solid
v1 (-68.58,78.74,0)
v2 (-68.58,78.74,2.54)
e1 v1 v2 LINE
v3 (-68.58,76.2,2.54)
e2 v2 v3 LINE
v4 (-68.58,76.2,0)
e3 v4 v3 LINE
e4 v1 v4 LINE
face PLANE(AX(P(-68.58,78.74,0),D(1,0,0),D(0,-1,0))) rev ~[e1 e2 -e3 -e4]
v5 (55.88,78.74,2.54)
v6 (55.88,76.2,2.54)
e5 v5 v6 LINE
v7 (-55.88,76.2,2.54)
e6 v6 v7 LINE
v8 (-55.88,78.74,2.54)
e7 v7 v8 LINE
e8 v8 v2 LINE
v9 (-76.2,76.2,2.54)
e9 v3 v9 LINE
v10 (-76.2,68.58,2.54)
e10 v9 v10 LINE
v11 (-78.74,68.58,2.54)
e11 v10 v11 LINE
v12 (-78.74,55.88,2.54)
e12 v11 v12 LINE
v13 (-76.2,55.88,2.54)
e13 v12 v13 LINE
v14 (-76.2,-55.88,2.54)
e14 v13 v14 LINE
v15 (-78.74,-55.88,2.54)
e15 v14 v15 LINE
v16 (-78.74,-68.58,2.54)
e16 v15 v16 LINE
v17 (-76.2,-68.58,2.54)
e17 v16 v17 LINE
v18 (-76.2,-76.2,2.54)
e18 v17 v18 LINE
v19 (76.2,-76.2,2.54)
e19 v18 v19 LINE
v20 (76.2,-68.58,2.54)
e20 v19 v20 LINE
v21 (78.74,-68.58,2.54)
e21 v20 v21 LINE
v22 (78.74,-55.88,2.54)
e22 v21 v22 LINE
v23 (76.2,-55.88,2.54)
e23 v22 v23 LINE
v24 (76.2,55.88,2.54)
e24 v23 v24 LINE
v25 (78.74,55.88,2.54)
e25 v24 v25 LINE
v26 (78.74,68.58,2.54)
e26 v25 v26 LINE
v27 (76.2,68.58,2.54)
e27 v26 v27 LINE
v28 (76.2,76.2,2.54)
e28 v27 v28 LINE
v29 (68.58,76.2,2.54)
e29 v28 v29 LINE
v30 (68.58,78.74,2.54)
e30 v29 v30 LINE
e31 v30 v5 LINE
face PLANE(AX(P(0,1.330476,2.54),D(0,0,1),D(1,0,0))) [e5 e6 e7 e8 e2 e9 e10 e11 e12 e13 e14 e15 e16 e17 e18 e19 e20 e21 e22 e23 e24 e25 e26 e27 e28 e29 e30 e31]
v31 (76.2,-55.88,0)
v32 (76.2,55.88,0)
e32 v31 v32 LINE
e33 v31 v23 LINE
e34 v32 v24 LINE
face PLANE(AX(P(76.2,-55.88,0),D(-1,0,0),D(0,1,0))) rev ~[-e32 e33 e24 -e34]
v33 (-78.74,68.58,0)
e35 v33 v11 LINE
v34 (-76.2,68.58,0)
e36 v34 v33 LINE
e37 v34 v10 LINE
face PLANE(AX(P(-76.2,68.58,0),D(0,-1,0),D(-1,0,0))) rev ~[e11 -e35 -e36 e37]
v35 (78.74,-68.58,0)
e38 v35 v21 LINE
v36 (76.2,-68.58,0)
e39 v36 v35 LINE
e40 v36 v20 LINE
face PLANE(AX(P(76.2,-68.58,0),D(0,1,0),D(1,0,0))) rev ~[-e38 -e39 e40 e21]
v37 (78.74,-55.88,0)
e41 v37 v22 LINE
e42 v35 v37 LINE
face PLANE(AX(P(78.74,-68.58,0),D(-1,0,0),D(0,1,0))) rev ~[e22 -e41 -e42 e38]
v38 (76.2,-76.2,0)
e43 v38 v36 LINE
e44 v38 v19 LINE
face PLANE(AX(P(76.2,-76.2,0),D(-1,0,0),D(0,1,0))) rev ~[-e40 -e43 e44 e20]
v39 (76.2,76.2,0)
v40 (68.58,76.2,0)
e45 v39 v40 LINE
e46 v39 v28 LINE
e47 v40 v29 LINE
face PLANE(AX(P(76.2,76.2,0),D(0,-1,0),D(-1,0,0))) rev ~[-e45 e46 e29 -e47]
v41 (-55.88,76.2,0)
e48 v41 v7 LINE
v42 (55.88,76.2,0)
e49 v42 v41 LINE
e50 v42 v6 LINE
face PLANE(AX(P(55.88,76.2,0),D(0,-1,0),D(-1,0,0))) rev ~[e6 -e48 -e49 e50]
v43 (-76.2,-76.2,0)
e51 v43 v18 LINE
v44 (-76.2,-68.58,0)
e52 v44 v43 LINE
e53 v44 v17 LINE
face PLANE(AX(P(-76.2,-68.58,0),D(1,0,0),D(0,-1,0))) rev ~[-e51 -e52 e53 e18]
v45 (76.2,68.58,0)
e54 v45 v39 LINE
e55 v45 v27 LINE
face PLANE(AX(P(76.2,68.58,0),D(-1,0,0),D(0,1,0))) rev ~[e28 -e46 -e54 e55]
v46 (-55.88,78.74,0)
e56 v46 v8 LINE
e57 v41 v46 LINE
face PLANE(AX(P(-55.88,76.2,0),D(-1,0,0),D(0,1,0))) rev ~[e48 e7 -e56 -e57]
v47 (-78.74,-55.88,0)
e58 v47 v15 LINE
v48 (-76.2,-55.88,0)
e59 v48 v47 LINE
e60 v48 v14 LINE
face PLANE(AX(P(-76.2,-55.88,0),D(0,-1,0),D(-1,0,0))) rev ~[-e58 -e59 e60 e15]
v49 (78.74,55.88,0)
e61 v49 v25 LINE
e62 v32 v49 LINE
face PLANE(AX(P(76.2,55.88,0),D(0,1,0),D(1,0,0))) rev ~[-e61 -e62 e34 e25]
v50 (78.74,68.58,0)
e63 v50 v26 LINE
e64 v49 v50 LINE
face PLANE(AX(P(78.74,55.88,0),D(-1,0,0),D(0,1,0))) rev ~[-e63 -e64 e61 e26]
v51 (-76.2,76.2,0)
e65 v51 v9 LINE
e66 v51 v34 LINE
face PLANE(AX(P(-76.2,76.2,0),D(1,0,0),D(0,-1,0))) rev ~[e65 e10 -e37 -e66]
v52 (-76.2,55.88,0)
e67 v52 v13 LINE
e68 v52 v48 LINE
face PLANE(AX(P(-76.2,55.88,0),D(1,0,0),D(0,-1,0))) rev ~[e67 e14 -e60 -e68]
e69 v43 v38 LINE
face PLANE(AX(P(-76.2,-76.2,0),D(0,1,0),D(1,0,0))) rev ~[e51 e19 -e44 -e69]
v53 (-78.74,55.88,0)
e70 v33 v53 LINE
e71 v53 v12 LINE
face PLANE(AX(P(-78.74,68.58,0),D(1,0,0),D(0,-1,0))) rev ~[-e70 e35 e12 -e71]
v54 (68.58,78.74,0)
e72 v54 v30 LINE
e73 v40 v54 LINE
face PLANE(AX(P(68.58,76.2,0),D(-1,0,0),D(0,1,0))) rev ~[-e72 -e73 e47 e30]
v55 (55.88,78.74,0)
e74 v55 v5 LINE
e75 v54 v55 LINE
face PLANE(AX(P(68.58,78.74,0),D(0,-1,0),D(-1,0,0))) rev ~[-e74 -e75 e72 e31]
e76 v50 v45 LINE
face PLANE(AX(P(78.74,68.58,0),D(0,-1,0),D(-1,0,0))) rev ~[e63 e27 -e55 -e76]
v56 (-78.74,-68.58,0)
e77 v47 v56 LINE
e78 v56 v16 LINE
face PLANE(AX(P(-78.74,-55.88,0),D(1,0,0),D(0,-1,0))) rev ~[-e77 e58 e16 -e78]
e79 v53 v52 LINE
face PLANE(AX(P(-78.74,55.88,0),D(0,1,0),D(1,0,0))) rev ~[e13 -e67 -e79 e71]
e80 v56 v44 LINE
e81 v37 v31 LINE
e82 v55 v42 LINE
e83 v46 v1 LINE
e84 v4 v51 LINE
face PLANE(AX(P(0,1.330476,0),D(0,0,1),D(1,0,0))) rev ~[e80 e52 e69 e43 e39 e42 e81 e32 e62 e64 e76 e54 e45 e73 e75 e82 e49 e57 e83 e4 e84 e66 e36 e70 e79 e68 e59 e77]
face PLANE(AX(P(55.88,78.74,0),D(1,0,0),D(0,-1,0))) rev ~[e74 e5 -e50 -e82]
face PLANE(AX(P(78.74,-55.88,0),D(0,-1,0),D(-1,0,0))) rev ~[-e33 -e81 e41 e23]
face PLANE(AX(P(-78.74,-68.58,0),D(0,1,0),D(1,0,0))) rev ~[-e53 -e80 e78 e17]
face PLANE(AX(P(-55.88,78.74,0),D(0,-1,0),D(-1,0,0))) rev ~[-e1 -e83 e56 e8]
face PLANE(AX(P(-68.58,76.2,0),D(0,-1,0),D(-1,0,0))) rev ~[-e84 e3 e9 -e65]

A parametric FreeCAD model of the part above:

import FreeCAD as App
import Part
import Sketcher
from FreeCAD import Vector
Q = App.Units.Quantity


def add_polygon(sketch, points):
    """Adds a closed chain of lines whose ends are joined by coincident constraints."""
    first, n = sketch.GeometryCount, len(points)
    for a, b in zip(points, points[1:] + points[:1]):
        sketch.addGeometry(Part.LineSegment(App.Vector(*a, 0), App.Vector(*b, 0)), False)
    for i in range(n):
        sketch.addConstraint(Sketcher.Constraint("Coincident", first + i, 2, first + (i + 1) % n, 1))

doc = App.newDocument("Part")
body = doc.addObject("PartDesign::Body", "Body")

# Sketch on XY plane
sketch1 = body.newObject("Sketcher::SketchObject", "Sketch")
sketch1.AttachmentSupport = (doc.getObject("XY_Plane"), [""])
sketch1.MapMode = "FlatFace"
add_polygon(sketch1, [(-76.2, -76.2), (76.2, -76.2), (76.2, -68.6), (78.7, -68.6), (78.7, -55.9), (76.2, -55.9), (76.2, 55.9), (78.7, 55.9), (78.7, 68.6), (76.2, 68.6), (76.2, 76.2), (68.6, 76.2), (68.6, 78.7), (55.9, 78.7), (55.9, 76.2), (-55.9, 76.2), (-55.9, 78.7), (-68.6, 78.7), (-68.6, 76.2), (-76.2, 76.2), (-76.2, 68.6), (-78.7, 68.6), (-78.7, 55.9), (-76.2, 55.9), (-76.2, -55.9), (-78.7, -55.9), (-78.7, -68.6), (-76.2, -68.6)])  # lines 0-27
sketch1.addConstraint([
    Sketcher.Constraint("Horizontal", 0),
    Sketcher.Constraint("Vertical", 1),
    Sketcher.Constraint("Horizontal", 2),
    Sketcher.Constraint("Vertical", 3),
    Sketcher.Constraint("Horizontal", 4),
    Sketcher.Constraint("Vertical", 5),
    Sketcher.Constraint("Horizontal", 6),
    Sketcher.Constraint("Vertical", 7),
    Sketcher.Constraint("Horizontal", 8),
    Sketcher.Constraint("Vertical", 9),
    Sketcher.Constraint("Horizontal", 10),
    Sketcher.Constraint("Vertical", 11),
    Sketcher.Constraint("Horizontal", 12),
    Sketcher.Constraint("Vertical", 13),
    Sketcher.Constraint("Horizontal", 14),
    Sketcher.Constraint("Vertical", 15),
    Sketcher.Constraint("Horizontal", 16),
    Sketcher.Constraint("Vertical", 17),
    Sketcher.Constraint("Horizontal", 18),
    Sketcher.Constraint("Vertical", 19),
    Sketcher.Constraint("Horizontal", 20),
    Sketcher.Constraint("Vertical", 21),
    Sketcher.Constraint("Horizontal", 22),
    Sketcher.Constraint("Vertical", 23),
    Sketcher.Constraint("Horizontal", 24),
    Sketcher.Constraint("Vertical", 25),
    Sketcher.Constraint("Horizontal", 26),
    Sketcher.Constraint("Vertical", 27),
    Sketcher.Constraint("Symmetric", 0, 2, 18, 2, -1, 1),
    Sketcher.Constraint("Symmetric", 2, 2, 20, 2, -1, 1),
    Sketcher.Constraint("Symmetric", 4, 2, 22, 2, -1, 1),
    Sketcher.Constraint("Symmetric", 6, 2, 24, 2, -1, 1),
    Sketcher.Constraint("Symmetric", 8, 2, 26, 2, -1, 1),
    Sketcher.Constraint("Symmetric", 12, 2, 15, 2, -2),
    Sketcher.Constraint("Symmetric", 10, 2, 17, 2, -2),
    Sketcher.Constraint("Symmetric", 8, 2, 19, 2, -2),
    Sketcher.Constraint("Symmetric", 6, 2, 21, 2, -2),
    Sketcher.Constraint("Horizontal", 10, 2, 13, 2),
    Sketcher.Constraint("Vertical", 1, 2, 4, 2),
    Sketcher.Constraint("Equal", 18, 1),
    Sketcher.Constraint("Equal", 16, 3),
    Sketcher.Constraint("Equal", 14, 5),
    Sketcher.Constraint("Equal", 26, 11),
    Sketcher.Constraint("DistanceX", 0, 1, 0, 2, Q("6 in")),
    Sketcher.Constraint("DistanceX", 2, 1, 2, 2, Q("0.1 in")),
    Sketcher.Constraint("DistanceX", 10, 2, 10, 1, Q("0.3 in")),
    Sketcher.Constraint("DistanceX", 12, 2, 12, 1, Q("0.5 in")),
])
pad1 = body.newObject("PartDesign::Pad", "Pad")
pad1.Profile = sketch1
pad1.Length = Q("0.1 in")

doc.recompute()
